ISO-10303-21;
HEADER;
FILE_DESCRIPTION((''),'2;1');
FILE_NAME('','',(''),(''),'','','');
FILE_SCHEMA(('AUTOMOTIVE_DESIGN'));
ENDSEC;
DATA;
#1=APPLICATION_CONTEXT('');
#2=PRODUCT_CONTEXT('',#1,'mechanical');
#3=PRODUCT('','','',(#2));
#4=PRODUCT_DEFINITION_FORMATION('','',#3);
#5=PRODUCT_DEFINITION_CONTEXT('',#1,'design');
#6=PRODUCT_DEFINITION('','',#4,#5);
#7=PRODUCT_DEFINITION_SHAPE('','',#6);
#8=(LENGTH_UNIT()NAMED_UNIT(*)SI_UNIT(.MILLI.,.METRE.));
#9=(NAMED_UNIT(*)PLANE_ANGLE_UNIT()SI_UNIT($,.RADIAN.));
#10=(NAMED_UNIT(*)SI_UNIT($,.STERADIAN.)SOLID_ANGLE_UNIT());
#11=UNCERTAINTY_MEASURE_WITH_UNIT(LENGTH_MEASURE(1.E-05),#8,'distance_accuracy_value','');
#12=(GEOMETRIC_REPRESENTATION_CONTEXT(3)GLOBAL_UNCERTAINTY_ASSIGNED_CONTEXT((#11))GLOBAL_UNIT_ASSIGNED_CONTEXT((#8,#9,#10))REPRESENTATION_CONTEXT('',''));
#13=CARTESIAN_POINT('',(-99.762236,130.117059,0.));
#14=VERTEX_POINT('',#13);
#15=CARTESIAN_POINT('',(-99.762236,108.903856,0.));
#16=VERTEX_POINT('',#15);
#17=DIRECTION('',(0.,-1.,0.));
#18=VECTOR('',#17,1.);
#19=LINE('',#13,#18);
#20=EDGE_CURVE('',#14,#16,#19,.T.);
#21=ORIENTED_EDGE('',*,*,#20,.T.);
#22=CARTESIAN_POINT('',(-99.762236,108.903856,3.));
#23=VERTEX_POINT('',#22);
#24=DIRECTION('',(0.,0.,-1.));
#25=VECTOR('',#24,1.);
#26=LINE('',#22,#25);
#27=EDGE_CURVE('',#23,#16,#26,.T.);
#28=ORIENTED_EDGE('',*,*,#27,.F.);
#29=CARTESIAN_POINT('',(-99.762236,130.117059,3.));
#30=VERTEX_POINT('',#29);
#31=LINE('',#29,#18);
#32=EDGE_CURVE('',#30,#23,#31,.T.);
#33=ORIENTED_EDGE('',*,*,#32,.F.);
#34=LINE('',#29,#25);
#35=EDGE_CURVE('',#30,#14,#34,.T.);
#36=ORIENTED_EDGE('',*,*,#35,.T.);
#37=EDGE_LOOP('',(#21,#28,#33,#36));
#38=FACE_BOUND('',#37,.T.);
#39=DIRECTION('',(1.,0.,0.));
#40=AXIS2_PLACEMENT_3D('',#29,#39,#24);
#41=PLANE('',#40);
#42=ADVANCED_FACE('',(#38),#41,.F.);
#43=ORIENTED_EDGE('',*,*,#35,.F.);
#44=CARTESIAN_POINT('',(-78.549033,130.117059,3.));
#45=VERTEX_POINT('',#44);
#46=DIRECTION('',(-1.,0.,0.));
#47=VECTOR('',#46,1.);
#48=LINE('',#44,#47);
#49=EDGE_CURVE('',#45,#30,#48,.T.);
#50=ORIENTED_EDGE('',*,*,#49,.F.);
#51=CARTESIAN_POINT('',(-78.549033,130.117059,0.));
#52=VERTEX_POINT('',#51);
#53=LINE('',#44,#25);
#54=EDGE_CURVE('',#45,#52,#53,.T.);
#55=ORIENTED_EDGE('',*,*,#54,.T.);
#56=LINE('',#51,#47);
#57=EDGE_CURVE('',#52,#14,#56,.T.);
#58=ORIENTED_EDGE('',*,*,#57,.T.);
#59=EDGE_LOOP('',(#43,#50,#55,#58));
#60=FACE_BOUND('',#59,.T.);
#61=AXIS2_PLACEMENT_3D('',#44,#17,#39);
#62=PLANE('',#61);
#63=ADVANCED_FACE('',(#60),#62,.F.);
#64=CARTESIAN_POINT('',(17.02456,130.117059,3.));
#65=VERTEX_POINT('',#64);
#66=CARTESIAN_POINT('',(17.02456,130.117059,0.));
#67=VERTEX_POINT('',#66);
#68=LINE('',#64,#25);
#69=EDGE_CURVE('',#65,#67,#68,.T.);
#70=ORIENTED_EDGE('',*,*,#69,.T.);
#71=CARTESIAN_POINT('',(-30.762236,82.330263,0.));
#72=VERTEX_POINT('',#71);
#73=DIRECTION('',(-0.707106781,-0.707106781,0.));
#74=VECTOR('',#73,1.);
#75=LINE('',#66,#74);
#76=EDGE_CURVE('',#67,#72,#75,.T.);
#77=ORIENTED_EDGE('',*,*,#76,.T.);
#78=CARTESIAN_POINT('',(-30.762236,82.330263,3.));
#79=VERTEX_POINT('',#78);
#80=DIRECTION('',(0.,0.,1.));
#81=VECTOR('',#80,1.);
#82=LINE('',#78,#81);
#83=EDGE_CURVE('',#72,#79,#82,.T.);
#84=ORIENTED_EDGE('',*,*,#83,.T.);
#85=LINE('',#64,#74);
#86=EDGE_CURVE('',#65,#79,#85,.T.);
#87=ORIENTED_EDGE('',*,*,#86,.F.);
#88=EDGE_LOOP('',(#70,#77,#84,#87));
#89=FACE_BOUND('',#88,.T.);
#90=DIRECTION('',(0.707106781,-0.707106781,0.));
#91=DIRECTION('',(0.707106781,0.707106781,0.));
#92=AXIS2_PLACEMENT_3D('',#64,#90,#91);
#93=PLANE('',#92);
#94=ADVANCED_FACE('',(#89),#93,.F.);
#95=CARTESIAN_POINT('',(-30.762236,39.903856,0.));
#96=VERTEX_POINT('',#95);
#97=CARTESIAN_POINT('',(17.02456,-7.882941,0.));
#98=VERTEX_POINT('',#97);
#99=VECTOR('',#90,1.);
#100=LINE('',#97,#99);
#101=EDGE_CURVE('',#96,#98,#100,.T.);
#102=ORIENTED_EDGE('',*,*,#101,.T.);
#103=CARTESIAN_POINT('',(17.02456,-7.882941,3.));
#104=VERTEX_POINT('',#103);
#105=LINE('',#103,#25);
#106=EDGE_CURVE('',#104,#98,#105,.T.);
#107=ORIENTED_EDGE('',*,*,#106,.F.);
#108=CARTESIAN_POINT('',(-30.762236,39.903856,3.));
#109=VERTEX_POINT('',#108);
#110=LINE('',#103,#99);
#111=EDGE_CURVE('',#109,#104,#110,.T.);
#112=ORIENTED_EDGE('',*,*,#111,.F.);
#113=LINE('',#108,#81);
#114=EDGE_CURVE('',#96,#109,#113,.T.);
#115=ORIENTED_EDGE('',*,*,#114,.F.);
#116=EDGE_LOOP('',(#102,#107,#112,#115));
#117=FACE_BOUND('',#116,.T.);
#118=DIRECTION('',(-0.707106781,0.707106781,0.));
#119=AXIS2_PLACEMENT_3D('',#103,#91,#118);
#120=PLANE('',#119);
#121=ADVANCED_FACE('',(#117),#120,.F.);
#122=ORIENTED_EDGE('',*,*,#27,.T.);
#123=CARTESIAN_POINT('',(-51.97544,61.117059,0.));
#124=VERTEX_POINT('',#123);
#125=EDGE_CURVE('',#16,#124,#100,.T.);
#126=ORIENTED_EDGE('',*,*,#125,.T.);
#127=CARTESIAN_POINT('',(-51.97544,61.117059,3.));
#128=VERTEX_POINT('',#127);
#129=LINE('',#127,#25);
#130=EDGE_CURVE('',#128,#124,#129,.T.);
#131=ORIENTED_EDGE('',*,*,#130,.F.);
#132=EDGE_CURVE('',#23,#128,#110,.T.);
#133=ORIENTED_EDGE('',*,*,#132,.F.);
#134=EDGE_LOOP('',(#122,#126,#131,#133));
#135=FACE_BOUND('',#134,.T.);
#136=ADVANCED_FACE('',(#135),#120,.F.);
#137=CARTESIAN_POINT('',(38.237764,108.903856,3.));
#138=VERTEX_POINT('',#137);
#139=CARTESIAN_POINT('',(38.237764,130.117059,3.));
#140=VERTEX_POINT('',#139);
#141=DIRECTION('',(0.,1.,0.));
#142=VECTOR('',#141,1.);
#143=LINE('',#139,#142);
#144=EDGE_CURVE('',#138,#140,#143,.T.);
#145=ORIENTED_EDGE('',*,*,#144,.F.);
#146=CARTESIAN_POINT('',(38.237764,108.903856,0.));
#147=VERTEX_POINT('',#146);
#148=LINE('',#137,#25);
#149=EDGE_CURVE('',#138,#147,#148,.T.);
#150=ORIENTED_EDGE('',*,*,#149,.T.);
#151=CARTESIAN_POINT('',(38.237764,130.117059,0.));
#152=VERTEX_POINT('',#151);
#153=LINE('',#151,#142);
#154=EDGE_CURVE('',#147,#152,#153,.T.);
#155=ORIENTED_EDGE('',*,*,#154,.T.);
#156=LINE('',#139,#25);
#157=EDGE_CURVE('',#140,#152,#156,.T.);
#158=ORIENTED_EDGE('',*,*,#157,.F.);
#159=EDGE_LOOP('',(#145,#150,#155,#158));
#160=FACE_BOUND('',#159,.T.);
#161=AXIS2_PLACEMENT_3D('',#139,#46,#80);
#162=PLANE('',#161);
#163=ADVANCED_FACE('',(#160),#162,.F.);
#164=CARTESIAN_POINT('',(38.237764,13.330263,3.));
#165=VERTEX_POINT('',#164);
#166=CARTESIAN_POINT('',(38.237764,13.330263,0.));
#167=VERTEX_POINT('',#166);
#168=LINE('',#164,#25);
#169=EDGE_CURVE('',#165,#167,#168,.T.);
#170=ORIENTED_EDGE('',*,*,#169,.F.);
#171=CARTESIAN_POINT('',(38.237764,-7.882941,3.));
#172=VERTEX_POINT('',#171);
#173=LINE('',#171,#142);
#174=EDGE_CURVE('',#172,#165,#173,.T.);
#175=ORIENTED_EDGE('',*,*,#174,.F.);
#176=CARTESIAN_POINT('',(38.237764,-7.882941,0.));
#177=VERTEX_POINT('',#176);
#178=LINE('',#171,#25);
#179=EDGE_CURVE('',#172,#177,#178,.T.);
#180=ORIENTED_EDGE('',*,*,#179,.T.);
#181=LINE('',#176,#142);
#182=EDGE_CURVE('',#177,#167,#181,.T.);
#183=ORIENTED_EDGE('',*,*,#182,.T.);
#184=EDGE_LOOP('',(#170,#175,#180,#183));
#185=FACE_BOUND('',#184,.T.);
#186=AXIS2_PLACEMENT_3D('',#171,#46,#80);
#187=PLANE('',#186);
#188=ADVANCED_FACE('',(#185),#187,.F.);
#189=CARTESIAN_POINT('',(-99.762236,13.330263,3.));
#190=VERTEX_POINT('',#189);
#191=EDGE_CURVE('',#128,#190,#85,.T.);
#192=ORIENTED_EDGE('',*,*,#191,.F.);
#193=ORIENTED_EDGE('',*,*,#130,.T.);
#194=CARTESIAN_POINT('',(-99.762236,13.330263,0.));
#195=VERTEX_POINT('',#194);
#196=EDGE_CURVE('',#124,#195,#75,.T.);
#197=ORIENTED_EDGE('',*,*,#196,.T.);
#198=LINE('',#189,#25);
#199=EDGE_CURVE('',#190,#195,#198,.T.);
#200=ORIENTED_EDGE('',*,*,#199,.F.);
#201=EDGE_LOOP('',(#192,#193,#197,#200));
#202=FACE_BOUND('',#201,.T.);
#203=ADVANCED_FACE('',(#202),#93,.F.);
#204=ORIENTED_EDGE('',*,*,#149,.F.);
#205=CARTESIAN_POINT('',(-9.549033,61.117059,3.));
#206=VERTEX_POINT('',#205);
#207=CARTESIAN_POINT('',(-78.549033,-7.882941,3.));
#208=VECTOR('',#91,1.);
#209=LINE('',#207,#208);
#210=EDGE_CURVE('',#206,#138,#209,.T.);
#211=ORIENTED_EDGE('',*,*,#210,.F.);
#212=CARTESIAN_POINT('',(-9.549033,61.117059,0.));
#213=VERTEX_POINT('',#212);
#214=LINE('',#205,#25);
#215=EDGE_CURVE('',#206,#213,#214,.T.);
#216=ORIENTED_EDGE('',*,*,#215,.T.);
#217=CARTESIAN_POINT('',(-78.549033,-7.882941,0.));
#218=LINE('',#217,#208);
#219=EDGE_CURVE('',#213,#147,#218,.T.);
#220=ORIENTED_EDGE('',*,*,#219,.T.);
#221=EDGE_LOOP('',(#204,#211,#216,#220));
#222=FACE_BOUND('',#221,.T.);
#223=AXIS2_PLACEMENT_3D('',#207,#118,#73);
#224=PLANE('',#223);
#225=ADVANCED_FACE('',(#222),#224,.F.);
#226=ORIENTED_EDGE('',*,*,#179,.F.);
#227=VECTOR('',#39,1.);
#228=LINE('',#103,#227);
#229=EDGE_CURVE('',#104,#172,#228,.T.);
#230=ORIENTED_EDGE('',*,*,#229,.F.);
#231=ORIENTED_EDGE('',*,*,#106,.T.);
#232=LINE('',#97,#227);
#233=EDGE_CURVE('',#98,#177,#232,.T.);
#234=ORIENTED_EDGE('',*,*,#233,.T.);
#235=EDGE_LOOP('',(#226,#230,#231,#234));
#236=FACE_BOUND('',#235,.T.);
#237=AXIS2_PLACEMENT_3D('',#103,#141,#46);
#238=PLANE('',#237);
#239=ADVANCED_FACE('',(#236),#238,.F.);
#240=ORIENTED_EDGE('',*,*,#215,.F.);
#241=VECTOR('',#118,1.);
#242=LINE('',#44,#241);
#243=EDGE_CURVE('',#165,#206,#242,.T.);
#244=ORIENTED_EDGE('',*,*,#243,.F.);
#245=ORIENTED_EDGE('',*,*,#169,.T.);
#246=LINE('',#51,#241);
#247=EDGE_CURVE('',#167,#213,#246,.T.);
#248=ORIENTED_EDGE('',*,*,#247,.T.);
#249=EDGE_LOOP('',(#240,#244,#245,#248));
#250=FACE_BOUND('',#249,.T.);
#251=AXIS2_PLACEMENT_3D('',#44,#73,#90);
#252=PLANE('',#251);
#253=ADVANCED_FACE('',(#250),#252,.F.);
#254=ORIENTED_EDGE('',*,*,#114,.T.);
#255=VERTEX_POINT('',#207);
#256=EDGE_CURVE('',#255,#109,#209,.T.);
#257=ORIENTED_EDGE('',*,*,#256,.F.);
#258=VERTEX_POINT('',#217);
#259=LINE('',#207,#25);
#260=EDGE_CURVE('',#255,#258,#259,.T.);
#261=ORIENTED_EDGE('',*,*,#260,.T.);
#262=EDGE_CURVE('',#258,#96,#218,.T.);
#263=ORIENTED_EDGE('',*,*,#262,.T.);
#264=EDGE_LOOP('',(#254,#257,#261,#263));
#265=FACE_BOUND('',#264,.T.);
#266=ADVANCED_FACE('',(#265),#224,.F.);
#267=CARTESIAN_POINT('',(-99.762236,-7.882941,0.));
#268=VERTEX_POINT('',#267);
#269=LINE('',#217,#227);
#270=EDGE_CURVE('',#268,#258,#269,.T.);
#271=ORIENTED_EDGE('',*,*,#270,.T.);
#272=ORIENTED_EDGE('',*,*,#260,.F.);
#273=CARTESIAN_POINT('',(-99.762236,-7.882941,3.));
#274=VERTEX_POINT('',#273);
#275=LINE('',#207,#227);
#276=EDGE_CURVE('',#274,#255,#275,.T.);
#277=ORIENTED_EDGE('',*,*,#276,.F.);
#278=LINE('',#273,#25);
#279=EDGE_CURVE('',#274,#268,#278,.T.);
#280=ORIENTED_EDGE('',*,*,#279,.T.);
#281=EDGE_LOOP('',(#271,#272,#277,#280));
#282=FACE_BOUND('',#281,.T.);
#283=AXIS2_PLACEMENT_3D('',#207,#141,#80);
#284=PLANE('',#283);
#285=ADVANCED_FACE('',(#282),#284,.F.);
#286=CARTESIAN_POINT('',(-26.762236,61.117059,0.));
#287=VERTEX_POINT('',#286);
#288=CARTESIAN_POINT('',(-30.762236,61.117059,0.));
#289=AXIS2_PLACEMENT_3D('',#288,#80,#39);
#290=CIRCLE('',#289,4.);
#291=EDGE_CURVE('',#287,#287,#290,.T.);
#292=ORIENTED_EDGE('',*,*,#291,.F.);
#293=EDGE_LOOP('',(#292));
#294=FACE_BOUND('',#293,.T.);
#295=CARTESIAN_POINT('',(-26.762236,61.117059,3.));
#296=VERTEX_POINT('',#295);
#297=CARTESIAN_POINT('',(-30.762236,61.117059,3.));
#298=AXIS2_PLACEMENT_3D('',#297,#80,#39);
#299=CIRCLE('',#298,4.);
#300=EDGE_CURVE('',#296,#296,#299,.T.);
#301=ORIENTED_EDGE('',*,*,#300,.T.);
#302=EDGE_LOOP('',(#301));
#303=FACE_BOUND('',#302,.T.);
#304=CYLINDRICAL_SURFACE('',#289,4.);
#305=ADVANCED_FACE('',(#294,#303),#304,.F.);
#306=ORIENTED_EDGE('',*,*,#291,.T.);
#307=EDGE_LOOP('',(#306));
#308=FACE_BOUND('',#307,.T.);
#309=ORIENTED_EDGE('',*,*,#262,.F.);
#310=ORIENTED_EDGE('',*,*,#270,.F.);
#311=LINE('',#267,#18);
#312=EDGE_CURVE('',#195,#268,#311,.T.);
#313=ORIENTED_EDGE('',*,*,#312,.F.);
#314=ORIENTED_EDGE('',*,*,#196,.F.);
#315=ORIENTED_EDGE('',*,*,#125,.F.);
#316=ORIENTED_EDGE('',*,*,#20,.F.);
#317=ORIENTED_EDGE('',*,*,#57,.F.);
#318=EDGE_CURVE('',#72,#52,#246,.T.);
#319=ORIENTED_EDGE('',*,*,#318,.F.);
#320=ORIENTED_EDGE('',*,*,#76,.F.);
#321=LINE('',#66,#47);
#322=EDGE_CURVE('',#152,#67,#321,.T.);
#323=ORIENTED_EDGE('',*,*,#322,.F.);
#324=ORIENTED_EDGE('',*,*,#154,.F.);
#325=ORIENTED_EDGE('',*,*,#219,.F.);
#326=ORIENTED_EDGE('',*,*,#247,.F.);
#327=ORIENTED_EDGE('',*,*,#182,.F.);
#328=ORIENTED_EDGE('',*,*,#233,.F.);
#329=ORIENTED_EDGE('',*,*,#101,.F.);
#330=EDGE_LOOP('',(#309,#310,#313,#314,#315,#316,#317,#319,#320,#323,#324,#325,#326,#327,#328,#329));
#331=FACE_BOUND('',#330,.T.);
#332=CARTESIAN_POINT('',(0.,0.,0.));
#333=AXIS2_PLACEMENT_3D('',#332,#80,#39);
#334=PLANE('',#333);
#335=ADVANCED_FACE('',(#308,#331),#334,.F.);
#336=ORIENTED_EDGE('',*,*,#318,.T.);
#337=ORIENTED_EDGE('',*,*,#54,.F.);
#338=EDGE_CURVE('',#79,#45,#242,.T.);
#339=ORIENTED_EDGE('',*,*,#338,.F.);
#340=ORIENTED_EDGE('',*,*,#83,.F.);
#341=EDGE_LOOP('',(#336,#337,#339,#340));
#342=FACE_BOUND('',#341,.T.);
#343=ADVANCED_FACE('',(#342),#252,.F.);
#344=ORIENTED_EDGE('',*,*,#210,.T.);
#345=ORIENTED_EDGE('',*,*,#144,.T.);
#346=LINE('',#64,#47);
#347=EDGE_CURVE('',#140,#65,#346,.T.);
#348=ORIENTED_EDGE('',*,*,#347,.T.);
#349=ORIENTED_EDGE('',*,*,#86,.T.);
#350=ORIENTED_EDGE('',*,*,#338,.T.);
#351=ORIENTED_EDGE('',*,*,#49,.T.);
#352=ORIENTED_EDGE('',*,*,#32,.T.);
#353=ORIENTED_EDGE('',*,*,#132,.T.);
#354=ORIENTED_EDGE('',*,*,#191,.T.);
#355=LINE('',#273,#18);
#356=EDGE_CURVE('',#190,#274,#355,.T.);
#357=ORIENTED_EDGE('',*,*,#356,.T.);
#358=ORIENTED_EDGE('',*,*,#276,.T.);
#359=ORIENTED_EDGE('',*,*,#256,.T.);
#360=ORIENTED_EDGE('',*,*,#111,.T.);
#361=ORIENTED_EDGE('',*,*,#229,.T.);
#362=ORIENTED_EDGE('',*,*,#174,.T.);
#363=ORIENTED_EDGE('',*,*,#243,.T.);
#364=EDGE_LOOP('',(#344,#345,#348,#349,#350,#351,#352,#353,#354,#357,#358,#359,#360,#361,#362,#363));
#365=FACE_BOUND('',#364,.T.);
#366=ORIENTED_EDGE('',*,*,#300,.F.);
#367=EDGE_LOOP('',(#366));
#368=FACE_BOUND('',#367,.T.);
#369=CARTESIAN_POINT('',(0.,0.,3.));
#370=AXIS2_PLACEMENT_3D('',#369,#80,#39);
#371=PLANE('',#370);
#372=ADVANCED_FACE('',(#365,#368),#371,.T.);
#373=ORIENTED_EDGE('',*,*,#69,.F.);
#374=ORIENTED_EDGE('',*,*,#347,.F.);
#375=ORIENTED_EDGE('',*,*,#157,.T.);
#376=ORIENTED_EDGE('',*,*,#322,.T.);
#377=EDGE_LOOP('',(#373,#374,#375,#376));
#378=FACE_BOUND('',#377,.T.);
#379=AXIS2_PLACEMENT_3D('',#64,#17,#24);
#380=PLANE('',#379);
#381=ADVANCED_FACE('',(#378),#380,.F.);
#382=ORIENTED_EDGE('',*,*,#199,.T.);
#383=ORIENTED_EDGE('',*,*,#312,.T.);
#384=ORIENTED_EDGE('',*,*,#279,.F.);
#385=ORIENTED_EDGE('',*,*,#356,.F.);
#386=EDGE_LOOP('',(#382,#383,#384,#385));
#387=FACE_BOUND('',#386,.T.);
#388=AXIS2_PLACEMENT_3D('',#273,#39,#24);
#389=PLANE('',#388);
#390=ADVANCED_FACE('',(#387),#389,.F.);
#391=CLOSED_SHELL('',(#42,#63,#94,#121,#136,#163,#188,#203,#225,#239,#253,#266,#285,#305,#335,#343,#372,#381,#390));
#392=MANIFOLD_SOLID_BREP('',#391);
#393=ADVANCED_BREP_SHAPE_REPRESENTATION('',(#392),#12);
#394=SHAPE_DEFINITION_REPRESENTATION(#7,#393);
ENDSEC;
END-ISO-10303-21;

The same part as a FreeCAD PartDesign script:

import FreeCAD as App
import Part
import Sketcher

V = App.Vector
Q = App.Units.Quantity

doc = App.newDocument("Part")
body = doc.addObject("PartDesign::Body", "Body")

# Sketch on XY plane
sketch1 = body.newObject("Sketcher::SketchObject", "Sketch")
sketch1.AttachmentSupport = (doc.getObject("XY_Plane"), [""])
sketch1.MapMode = "FlatFace"
sketch1.addGeometry([
    Part.LineSegment(V(38, 13, 0), V(-79, 130, 0)),  # 0
    Part.LineSegment(V(-79, 130, 0), V(-100, 130, 0)),  # 1
    Part.LineSegment(V(-100, 130, 0), V(-100, 109, 0)),  # 2
    Part.LineSegment(V(-100, 109, 0), V(17, -8, 0)),  # 3
    Part.LineSegment(V(17, -8, 0), V(38, -8, 0)),  # 4
    Part.LineSegment(V(38, -8, 0), V(38, 13, 0)),  # 5
], False)
sketch1.addConstraint([
    Sketcher.Constraint("Coincident", 0, 2, 1, 1),
    Sketcher.Constraint("Coincident", 1, 2, 2, 1),
    Sketcher.Constraint("Coincident", 2, 2, 3, 1),
    Sketcher.Constraint("Coincident", 3, 2, 4, 1),
    Sketcher.Constraint("Coincident", 4, 2, 5, 1),
    Sketcher.Constraint("Coincident", 5, 2, 0, 1),
    Sketcher.Constraint("Horizontal", 1),
    Sketcher.Constraint("Vertical", 2),
    Sketcher.Constraint("Horizontal", 4),
    Sketcher.Constraint("Vertical", 5),
    Sketcher.Constraint("Parallel", 0, 3),
    Sketcher.Constraint("Equal", 1, 4),
    Sketcher.Constraint("Equal", 4, 2),
    Sketcher.Constraint("Angle", 0, Q("135 deg")),
    Sketcher.Constraint("DistanceY", 3, 2, 0, 2, 138.0),
    Sketcher.Constraint("Distance", 0, 165.161472),
    Sketcher.Constraint("DistanceY", -1, 1, 0, 2, 130.117059),
    Sketcher.Constraint("DistanceX", -1, 1, 3, 2, 17.02456),
])
pad1 = body.newObject("PartDesign::Pad", "Pad")
pad1.Profile = sketch1
pad1.Length = 3

# Sketch on XY plane
sketch2 = body.newObject("Sketcher::SketchObject", "Sketch001")
sketch2.AttachmentSupport = (doc.getObject("XY_Plane"), [""])
sketch2.MapMode = "FlatFace"
sketch2.addGeometry([
    Part.LineSegment(V(-79, -8, 0), V(38, 109, 0)),  # 0
    Part.LineSegment(V(38, 109, 0), V(38, 130, 0)),  # 1
    Part.LineSegment(V(38, 130, 0), V(17, 130, 0)),  # 2
    Part.LineSegment(V(17, 130, 0), V(-100, 13, 0)),  # 3
    Part.LineSegment(V(-100, 13, 0), V(-100, -8, 0)),  # 4
    Part.LineSegment(V(-100, -8, 0), V(-79, -8, 0)),  # 5
], False)
sketch2.addConstraint([
    Sketcher.Constraint("Coincident", 0, 2, 1, 1),
    Sketcher.Constraint("Coincident", 1, 2, 2, 1),
    Sketcher.Constraint("Coincident", 2, 2, 3, 1),
    Sketcher.Constraint("Coincident", 3, 2, 4, 1),
    Sketcher.Constraint("Coincident", 4, 2, 5, 1),
    Sketcher.Constraint("Coincident", 5, 2, 0, 1),
    Sketcher.Constraint("Vertical", 1),
    Sketcher.Constraint("Horizontal", 2),
    Sketcher.Constraint("Vertical", 4),
    Sketcher.Constraint("Horizontal", 5),
    Sketcher.Constraint("Parallel", 0, 3),
    Sketcher.Constraint("Equal", 2, 5),
    Sketcher.Constraint("Equal", 5, 1),
    Sketcher.Constraint("Angle", 0, Q("45 deg")),
    Sketcher.Constraint("DistanceX", 3, 2, 0, 2, 138.0),
    Sketcher.Constraint("Distance", 0, 165.161472),
    Sketcher.Constraint("DistanceY", -1, 1, 1, 2, 130.117059),
    Sketcher.Constraint("DistanceX", -1, 1, 2, 2, 17.02456),
])
pad2 = body.newObject("PartDesign::Pad", "Pad001")
pad2.Profile = sketch2
pad2.Length = 3

# Sketch on XY plane
sketch3 = body.newObject("Sketcher::SketchObject", "Sketch002")
sketch3.AttachmentSupport = (doc.getObject("XY_Plane"), [""])
sketch3.MapMode = "FlatFace"
sketch3.AttachmentOffset = App.Placement(V(0, 0, 3), App.Rotation())
sketch3.addGeometry(Part.Circle(V(-30.8, 61.1, 0), V(0, 0, 1), 4), False)
sketch3.addConstraint([
    Sketcher.Constraint("Diameter", 0, 8.0),
    Sketcher.Constraint("DistanceY", -1, 1, 0, 3, 61.117059),
    Sketcher.Constraint("DistanceX", 0, 3, -1, 1, 30.762236),
])
pocket1 = body.newObject("PartDesign::Pocket", "Pocket")
pocket1.Profile = sketch3
pocket1.Type = "ThroughAll"
pocket1.Midplane = True

doc.recompute()
